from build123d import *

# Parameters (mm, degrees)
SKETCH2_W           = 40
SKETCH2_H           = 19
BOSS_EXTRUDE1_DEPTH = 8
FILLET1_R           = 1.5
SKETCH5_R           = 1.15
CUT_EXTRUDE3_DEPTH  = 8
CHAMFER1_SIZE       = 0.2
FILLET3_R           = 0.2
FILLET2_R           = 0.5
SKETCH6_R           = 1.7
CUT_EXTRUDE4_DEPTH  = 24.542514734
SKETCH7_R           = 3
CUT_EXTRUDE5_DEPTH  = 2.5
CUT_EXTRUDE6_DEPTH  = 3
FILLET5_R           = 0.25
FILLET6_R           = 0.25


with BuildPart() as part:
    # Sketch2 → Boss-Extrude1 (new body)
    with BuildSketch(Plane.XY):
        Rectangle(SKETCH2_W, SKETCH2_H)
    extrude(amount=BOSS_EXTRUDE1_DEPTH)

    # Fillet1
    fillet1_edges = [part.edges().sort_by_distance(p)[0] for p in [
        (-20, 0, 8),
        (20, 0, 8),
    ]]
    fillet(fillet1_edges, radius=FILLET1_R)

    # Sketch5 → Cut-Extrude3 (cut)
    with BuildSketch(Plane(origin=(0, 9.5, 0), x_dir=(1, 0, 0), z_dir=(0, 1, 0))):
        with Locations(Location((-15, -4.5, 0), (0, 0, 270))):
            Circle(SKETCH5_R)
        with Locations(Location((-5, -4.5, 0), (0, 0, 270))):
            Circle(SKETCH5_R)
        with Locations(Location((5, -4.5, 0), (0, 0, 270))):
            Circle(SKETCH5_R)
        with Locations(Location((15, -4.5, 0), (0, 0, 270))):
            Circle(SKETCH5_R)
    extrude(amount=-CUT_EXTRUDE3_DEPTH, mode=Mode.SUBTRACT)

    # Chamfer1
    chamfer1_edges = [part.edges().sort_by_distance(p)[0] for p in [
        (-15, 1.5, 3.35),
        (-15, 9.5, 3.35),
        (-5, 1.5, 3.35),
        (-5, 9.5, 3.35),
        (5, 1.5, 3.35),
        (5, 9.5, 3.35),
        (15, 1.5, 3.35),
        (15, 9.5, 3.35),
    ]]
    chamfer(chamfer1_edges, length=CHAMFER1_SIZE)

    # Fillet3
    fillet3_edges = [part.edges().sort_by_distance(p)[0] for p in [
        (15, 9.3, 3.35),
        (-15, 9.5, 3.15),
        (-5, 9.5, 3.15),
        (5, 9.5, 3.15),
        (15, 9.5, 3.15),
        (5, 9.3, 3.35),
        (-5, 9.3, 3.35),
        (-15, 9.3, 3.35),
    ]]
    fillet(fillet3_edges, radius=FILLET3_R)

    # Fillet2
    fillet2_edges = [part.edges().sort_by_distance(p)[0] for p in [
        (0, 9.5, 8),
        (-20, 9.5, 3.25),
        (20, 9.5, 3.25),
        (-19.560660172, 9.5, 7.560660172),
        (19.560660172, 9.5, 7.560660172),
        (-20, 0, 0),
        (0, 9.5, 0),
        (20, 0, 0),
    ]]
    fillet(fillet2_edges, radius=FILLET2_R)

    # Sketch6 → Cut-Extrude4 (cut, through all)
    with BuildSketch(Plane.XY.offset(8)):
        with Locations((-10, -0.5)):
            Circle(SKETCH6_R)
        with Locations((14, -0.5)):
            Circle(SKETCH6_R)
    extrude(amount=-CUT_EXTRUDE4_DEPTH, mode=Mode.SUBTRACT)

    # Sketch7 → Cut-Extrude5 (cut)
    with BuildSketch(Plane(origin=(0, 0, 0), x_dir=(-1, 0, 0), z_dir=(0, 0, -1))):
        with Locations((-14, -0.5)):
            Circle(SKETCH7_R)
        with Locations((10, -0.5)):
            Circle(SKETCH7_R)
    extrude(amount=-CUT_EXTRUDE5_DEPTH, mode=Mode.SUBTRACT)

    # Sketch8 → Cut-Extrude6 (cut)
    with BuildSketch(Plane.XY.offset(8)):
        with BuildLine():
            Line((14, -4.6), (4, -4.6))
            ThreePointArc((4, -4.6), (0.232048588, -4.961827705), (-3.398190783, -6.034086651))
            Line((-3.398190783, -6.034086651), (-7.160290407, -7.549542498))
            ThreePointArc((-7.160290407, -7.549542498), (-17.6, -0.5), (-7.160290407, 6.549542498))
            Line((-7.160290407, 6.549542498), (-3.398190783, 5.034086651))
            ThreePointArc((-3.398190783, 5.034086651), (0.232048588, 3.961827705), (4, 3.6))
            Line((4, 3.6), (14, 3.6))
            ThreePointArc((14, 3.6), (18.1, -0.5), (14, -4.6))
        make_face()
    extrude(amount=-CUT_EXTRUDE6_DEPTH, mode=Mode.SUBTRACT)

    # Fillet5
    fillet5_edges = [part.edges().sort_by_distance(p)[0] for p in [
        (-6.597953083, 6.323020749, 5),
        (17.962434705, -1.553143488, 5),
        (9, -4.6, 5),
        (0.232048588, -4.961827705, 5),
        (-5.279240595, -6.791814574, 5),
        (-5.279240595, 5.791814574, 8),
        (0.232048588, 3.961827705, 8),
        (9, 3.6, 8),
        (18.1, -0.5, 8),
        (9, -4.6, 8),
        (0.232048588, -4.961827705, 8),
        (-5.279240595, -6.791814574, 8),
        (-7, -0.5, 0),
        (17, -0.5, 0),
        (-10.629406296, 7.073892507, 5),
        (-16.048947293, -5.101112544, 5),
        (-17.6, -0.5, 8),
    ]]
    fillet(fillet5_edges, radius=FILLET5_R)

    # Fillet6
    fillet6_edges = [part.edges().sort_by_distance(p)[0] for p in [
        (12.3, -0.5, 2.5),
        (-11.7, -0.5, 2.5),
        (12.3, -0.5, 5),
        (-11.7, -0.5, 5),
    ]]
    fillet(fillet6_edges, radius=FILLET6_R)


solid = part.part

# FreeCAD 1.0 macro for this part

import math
import FreeCAD as App
import Part
import Sketcher

V = App.Vector


def edges_at(feature, points):
    """Names of the edges that pass closest to the given points."""
    edges = feature.Shape.Edges
    near = lambda p: min(range(len(edges)), key=lambda i: edges[i].distToShape(Part.Vertex(*p))[0])
    return sorted({f"Edge{near(p) + 1}" for p in points})

doc = App.newDocument("Part")
body = doc.addObject("PartDesign::Body", "Body")

# Sketch on XY plane
sketch1 = body.newObject("Sketcher::SketchObject", "Sketch")
sketch1.AttachmentSupport = (doc.getObject("XY_Plane"), [""])
sketch1.MapMode = "FlatFace"
sketch1.addGeometry([
    Part.LineSegment(V(-20, 10, 0), V(-20, -10, 0)),
    Part.LineSegment(V(-20, -10, 0), V(20, -10, 0)),
    Part.LineSegment(V(20, -10, 0), V(20, 10, 0)),
    Part.LineSegment(V(20, 10, 0), V(-20, 10, 0)),
], False)
sketch1.addConstraint([
    Sketcher.Constraint("Coincident", 0, 2, 1, 1),
    Sketcher.Constraint("Coincident", 1, 2, 2, 1),
    Sketcher.Constraint("Coincident", 2, 2, 3, 1),
    Sketcher.Constraint("Coincident", 3, 2, 0, 1),
    Sketcher.Constraint("Vertical", 0),
    Sketcher.Constraint("Horizontal", 1),
    Sketcher.Constraint("Vertical", 2),
    Sketcher.Constraint("Horizontal", 3),
    Sketcher.Constraint("Symmetric", 0, 2, 2, 2, -1, 1),
    Sketcher.Constraint("DistanceX", 1, 1, 1, 2, 40.0),
    Sketcher.Constraint("DistanceY", 0, 2, 0, 1, 19.0),
])
pad1 = body.newObject("PartDesign::Pad", "Pad")
pad1.Profile = sketch1
pad1.Length = 8
doc.recompute()

fillet = body.newObject("PartDesign::Fillet", "Fillet")
fillet.Base = (pad1, edges_at(pad1, [(-20, 0, 8), (20, 0, 8)]))
fillet.Radius = 1.5

# Sketch on XZ plane
sketch2 = body.newObject("Sketcher::SketchObject", "Sketch001")
sketch2.AttachmentSupport = (doc.getObject("XZ_Plane"), [""])
sketch2.MapMode = "FlatFace"
sketch2.AttachmentOffset = App.Placement(V(0, 0, -9.5), App.Rotation())
sketch2.addGeometry([
    Part.Circle(V(-15, 4.5, 0), V(0, 0, 1), 1.1),
    Part.Circle(V(-5, 4.5, 0), V(0, 0, 1), 1.1),
    Part.Circle(V(5, 4.5, 0), V(0, 0, 1), 1.1),
    Part.Circle(V(15, 4.5, 0), V(0, 0, 1), 1.1),
], False)
sketch2.addConstraint([
    Sketcher.Constraint("Equal", 0, 1),
    Sketcher.Constraint("Equal", 1, 2),
    Sketcher.Constraint("Equal", 2, 3),
    Sketcher.Constraint("Symmetric", 1, 3, 2, 3, -2),
    Sketcher.Constraint("Symmetric", 0, 3, 3, 3, -2),
    Sketcher.Constraint("Horizontal", 0, 3, 1, 3),
    Sketcher.Constraint("Diameter", 0, 2.3),
    Sketcher.Constraint("DistanceX", 0, 3, -1, 1, 15.0),
    Sketcher.Constraint("DistanceX", 1, 3, -1, 1, 5.0),
    Sketcher.Constraint("DistanceY", -1, 1, 0, 3, 4.5),
])
pocket1 = body.newObject("PartDesign::Pocket", "Pocket")
pocket1.Profile = sketch2
pocket1.Length = 8
pocket1.Reversed = True
doc.recompute()

chamfer = body.newObject("PartDesign::Chamfer", "Chamfer")
chamfer.Base = (pocket1, edges_at(pocket1, [
    (-15, 1.5, 3.35),
    (-15, 9.5, 3.35),
    (-5, 1.5, 3.35),
    (-5, 9.5, 3.35),
    (5, 1.5, 3.35),
    (5, 9.5, 3.35),
    (15, 1.5, 3.35),
    (15, 9.5, 3.35),
]))
chamfer.Size = 0.2
doc.recompute()

fillet2 = body.newObject("PartDesign::Fillet", "Fillet001")
fillet2.Base = (chamfer, edges_at(chamfer, [
    (15, 9.3, 3.35),
    (-15, 9.5, 3.15),
    (-5, 9.5, 3.15),
    (5, 9.5, 3.15),
    (15, 9.5, 3.15),
    (5, 9.3, 3.35),
    (-5, 9.3, 3.35),
    (-15, 9.3, 3.35),
]))
fillet2.Radius = 0.2
doc.recompute()

fillet3 = body.newObject("PartDesign::Fillet", "Fillet002")
fillet3.Base = (fillet2, edges_at(fillet2, [
    (0, 9.5, 8),
    (-20, 9.5, 3.25),
    (20, 9.5, 3.25),
    (-19.561, 9.5, 7.561),
    (19.561, 9.5, 7.561),
    (-20, 0, 0),
    (0, 9.5, 0),
    (20, 0, 0),
]))
fillet3.Radius = 0.5

# Sketch on XY plane
sketch3 = body.newObject("Sketcher::SketchObject", "Sketch002")
sketch3.AttachmentSupport = (doc.getObject("XY_Plane"), [""])
sketch3.MapMode = "FlatFace"
sketch3.AttachmentOffset = App.Placement(V(0, 0, 8), App.Rotation())
sketch3.addGeometry([
    Part.Circle(V(-10, -0.5, 0), V(0, 0, 1), 1.7),
    Part.Circle(V(14, -0.5, 0), V(0, 0, 1), 1.7),
], False)
sketch3.addConstraint([
    Sketcher.Constraint("Equal", 0, 1),
    Sketcher.Constraint("Horizontal", 0, 3, 1, 3),
    Sketcher.Constraint("Diameter", 0, 3.4),
    Sketcher.Constraint("DistanceX", 0, 3, -1, 1, 10.0),
    Sketcher.Constraint("DistanceX", -1, 1, 1, 3, 14.0),
    Sketcher.Constraint("DistanceY", 0, 3, -1, 1, 0.5),
])
pocket2 = body.newObject("PartDesign::Pocket", "Pocket001")
pocket2.Profile = sketch3
pocket2.Type = "ThroughAll"

# Sketch on XY plane
sketch4 = body.newObject("Sketcher::SketchObject", "Sketch003")
sketch4.AttachmentSupport = (doc.getObject("XY_Plane"), [""])
sketch4.MapMode = "FlatFace"
sketch4.addGeometry([
    Part.Circle(V(14, -0.5, 0), V(0, 0, 1), 3),
    Part.Circle(V(-10, -0.5, 0), V(0, 0, 1), 3),
], False)
sketch4.addConstraint([
    Sketcher.Constraint("Equal", 0, 1),
    Sketcher.Constraint("Horizontal", 0, 3, 1, 3),
    Sketcher.Constraint("Diameter", 0, 6.0),
    Sketcher.Constraint("DistanceX", -1, 1, 0, 3, 14.0),
    Sketcher.Constraint("DistanceX", 1, 3, -1, 1, 10.0),
    Sketcher.Constraint("DistanceY", 0, 3, -1, 1, 0.5),
])
pocket3 = body.newObject("PartDesign::Pocket", "Pocket002")
pocket3.Profile = sketch4
pocket3.Length = 2.5
pocket3.Reversed = True

# Sketch on XY plane
sketch5 = body.newObject("Sketcher::SketchObject", "Sketch004")
sketch5.AttachmentSupport = (doc.getObject("XY_Plane"), [""])
sketch5.MapMode = "FlatFace"
sketch5.AttachmentOffset = App.Placement(V(0, 0, 8), App.Rotation())
sketch5.addGeometry([
    Part.LineSegment(V(4, -4.6, 0), V(14, -4.6, 0)),  # 0
    Part.ArcOfCircle(Part.Circle(V(14, -0.5, 0), V(0, 0, 1), 4.1), math.radians(-90), math.radians(90)),  # 1
    Part.LineSegment(V(14, 3.6, 0), V(4, 3.6, 0)),  # 2
    Part.ArcOfCircle(Part.Circle(V(4, 23.4, 0), V(0, 0, 1), 19.8), math.radians(-112), math.radians(-90)),  # 3
    Part.LineSegment(V(-3.4, 5, 0), V(-7.2, 6.5, 0)),  # 4
    Part.ArcOfCircle(Part.Circle(V(-10, -0.5, 0), V(0, 0, 1), 7.6), math.radians(68), math.radians(292)),  # 5
    Part.LineSegment(V(-7.2, -7.5, 0), V(-3.4, -6, 0)),  # 6
    Part.ArcOfCircle(Part.Circle(V(4, -24.4, 0), V(0, 0, 1), 19.8), math.radians(90), math.radians(112)),  # 7
], False)
sketch5.addConstraint([
    Sketcher.Constraint("Tangent", 0, 2, 1, 1),
    Sketcher.Constraint("Tangent", 1, 2, 2, 1),
    Sketcher.Constraint("Tangent", 2, 2, 3, 2),
    Sketcher.Constraint("Tangent", 3, 1, 4, 1),
    Sketcher.Constraint("Tangent", 4, 2, 5, 1),
    Sketcher.Constraint("Tangent", 5, 2, 6, 1),
    Sketcher.Constraint("Tangent", 6, 2, 7, 2),
    Sketcher.Constraint("Tangent", 7, 1, 0, 1),
    Sketcher.Constraint("Horizontal", 0),
    Sketcher.Constraint("Horizontal", 2),
    Sketcher.Constraint("Equal", 3, 7),
    Sketcher.Constraint("Horizontal", 1, 3, 5, 3),
    Sketcher.Constraint("Vertical", 3, 3, 7, 3),
    Sketcher.Constraint("Radius", 1, 4.1),
    Sketcher.Constraint("Radius", 3, 19.8),
    Sketcher.Constraint("Radius", 5, 7.6),
    Sketcher.Constraint("DistanceX", 0, 1, 0, 2, 10.0),
    Sketcher.Constraint("DistanceX", -1, 1, 1, 3, 14.0),
    Sketcher.Constraint("DistanceX", 5, 3, -1, 1, 10.0),
    Sketcher.Constraint("DistanceY", 1, 3, -1, 1, 0.5),
])
pocket4 = body.newObject("PartDesign::Pocket", "Pocket003")
pocket4.Profile = sketch5
pocket4.Length = 3
doc.recompute()

fillet4 = body.newObject("PartDesign::Fillet", "Fillet003")
fillet4.Base = (pocket4, edges_at(pocket4, [
    (-6.598, 6.323, 5),
    (17.962, -1.553, 5),
    (9, -4.6, 5),
    (0.232, -4.962, 5),
    (-5.279, -6.792, 5),
    (-5.279, 5.792, 8),
    (0.232, 3.962, 8),
    (9, 3.6, 8),
    (18.1, -0.5, 8),
    (9, -4.6, 8),
    (0.232, -4.962, 8),
    (-5.279, -6.792, 8),
    (-7, -0.5, 0),
    (17, -0.5, 0),
    (-10.629, 7.074, 5),
    (-16.049, -5.101, 5),
    (-17.6, -0.5, 8),
]))
fillet4.Radius = 0.25
doc.recompute()

fillet5 = body.newObject("PartDesign::Fillet", "Fillet004")
fillet5.Base = (fillet4, edges_at(fillet4, [
    (12.3, -0.5, 2.5),
    (-11.7, -0.5, 2.5),
    (12.3, -0.5, 5),
    (-11.7, -0.5, 5),
]))
fillet5.Radius = 0.25

doc.recompute()
